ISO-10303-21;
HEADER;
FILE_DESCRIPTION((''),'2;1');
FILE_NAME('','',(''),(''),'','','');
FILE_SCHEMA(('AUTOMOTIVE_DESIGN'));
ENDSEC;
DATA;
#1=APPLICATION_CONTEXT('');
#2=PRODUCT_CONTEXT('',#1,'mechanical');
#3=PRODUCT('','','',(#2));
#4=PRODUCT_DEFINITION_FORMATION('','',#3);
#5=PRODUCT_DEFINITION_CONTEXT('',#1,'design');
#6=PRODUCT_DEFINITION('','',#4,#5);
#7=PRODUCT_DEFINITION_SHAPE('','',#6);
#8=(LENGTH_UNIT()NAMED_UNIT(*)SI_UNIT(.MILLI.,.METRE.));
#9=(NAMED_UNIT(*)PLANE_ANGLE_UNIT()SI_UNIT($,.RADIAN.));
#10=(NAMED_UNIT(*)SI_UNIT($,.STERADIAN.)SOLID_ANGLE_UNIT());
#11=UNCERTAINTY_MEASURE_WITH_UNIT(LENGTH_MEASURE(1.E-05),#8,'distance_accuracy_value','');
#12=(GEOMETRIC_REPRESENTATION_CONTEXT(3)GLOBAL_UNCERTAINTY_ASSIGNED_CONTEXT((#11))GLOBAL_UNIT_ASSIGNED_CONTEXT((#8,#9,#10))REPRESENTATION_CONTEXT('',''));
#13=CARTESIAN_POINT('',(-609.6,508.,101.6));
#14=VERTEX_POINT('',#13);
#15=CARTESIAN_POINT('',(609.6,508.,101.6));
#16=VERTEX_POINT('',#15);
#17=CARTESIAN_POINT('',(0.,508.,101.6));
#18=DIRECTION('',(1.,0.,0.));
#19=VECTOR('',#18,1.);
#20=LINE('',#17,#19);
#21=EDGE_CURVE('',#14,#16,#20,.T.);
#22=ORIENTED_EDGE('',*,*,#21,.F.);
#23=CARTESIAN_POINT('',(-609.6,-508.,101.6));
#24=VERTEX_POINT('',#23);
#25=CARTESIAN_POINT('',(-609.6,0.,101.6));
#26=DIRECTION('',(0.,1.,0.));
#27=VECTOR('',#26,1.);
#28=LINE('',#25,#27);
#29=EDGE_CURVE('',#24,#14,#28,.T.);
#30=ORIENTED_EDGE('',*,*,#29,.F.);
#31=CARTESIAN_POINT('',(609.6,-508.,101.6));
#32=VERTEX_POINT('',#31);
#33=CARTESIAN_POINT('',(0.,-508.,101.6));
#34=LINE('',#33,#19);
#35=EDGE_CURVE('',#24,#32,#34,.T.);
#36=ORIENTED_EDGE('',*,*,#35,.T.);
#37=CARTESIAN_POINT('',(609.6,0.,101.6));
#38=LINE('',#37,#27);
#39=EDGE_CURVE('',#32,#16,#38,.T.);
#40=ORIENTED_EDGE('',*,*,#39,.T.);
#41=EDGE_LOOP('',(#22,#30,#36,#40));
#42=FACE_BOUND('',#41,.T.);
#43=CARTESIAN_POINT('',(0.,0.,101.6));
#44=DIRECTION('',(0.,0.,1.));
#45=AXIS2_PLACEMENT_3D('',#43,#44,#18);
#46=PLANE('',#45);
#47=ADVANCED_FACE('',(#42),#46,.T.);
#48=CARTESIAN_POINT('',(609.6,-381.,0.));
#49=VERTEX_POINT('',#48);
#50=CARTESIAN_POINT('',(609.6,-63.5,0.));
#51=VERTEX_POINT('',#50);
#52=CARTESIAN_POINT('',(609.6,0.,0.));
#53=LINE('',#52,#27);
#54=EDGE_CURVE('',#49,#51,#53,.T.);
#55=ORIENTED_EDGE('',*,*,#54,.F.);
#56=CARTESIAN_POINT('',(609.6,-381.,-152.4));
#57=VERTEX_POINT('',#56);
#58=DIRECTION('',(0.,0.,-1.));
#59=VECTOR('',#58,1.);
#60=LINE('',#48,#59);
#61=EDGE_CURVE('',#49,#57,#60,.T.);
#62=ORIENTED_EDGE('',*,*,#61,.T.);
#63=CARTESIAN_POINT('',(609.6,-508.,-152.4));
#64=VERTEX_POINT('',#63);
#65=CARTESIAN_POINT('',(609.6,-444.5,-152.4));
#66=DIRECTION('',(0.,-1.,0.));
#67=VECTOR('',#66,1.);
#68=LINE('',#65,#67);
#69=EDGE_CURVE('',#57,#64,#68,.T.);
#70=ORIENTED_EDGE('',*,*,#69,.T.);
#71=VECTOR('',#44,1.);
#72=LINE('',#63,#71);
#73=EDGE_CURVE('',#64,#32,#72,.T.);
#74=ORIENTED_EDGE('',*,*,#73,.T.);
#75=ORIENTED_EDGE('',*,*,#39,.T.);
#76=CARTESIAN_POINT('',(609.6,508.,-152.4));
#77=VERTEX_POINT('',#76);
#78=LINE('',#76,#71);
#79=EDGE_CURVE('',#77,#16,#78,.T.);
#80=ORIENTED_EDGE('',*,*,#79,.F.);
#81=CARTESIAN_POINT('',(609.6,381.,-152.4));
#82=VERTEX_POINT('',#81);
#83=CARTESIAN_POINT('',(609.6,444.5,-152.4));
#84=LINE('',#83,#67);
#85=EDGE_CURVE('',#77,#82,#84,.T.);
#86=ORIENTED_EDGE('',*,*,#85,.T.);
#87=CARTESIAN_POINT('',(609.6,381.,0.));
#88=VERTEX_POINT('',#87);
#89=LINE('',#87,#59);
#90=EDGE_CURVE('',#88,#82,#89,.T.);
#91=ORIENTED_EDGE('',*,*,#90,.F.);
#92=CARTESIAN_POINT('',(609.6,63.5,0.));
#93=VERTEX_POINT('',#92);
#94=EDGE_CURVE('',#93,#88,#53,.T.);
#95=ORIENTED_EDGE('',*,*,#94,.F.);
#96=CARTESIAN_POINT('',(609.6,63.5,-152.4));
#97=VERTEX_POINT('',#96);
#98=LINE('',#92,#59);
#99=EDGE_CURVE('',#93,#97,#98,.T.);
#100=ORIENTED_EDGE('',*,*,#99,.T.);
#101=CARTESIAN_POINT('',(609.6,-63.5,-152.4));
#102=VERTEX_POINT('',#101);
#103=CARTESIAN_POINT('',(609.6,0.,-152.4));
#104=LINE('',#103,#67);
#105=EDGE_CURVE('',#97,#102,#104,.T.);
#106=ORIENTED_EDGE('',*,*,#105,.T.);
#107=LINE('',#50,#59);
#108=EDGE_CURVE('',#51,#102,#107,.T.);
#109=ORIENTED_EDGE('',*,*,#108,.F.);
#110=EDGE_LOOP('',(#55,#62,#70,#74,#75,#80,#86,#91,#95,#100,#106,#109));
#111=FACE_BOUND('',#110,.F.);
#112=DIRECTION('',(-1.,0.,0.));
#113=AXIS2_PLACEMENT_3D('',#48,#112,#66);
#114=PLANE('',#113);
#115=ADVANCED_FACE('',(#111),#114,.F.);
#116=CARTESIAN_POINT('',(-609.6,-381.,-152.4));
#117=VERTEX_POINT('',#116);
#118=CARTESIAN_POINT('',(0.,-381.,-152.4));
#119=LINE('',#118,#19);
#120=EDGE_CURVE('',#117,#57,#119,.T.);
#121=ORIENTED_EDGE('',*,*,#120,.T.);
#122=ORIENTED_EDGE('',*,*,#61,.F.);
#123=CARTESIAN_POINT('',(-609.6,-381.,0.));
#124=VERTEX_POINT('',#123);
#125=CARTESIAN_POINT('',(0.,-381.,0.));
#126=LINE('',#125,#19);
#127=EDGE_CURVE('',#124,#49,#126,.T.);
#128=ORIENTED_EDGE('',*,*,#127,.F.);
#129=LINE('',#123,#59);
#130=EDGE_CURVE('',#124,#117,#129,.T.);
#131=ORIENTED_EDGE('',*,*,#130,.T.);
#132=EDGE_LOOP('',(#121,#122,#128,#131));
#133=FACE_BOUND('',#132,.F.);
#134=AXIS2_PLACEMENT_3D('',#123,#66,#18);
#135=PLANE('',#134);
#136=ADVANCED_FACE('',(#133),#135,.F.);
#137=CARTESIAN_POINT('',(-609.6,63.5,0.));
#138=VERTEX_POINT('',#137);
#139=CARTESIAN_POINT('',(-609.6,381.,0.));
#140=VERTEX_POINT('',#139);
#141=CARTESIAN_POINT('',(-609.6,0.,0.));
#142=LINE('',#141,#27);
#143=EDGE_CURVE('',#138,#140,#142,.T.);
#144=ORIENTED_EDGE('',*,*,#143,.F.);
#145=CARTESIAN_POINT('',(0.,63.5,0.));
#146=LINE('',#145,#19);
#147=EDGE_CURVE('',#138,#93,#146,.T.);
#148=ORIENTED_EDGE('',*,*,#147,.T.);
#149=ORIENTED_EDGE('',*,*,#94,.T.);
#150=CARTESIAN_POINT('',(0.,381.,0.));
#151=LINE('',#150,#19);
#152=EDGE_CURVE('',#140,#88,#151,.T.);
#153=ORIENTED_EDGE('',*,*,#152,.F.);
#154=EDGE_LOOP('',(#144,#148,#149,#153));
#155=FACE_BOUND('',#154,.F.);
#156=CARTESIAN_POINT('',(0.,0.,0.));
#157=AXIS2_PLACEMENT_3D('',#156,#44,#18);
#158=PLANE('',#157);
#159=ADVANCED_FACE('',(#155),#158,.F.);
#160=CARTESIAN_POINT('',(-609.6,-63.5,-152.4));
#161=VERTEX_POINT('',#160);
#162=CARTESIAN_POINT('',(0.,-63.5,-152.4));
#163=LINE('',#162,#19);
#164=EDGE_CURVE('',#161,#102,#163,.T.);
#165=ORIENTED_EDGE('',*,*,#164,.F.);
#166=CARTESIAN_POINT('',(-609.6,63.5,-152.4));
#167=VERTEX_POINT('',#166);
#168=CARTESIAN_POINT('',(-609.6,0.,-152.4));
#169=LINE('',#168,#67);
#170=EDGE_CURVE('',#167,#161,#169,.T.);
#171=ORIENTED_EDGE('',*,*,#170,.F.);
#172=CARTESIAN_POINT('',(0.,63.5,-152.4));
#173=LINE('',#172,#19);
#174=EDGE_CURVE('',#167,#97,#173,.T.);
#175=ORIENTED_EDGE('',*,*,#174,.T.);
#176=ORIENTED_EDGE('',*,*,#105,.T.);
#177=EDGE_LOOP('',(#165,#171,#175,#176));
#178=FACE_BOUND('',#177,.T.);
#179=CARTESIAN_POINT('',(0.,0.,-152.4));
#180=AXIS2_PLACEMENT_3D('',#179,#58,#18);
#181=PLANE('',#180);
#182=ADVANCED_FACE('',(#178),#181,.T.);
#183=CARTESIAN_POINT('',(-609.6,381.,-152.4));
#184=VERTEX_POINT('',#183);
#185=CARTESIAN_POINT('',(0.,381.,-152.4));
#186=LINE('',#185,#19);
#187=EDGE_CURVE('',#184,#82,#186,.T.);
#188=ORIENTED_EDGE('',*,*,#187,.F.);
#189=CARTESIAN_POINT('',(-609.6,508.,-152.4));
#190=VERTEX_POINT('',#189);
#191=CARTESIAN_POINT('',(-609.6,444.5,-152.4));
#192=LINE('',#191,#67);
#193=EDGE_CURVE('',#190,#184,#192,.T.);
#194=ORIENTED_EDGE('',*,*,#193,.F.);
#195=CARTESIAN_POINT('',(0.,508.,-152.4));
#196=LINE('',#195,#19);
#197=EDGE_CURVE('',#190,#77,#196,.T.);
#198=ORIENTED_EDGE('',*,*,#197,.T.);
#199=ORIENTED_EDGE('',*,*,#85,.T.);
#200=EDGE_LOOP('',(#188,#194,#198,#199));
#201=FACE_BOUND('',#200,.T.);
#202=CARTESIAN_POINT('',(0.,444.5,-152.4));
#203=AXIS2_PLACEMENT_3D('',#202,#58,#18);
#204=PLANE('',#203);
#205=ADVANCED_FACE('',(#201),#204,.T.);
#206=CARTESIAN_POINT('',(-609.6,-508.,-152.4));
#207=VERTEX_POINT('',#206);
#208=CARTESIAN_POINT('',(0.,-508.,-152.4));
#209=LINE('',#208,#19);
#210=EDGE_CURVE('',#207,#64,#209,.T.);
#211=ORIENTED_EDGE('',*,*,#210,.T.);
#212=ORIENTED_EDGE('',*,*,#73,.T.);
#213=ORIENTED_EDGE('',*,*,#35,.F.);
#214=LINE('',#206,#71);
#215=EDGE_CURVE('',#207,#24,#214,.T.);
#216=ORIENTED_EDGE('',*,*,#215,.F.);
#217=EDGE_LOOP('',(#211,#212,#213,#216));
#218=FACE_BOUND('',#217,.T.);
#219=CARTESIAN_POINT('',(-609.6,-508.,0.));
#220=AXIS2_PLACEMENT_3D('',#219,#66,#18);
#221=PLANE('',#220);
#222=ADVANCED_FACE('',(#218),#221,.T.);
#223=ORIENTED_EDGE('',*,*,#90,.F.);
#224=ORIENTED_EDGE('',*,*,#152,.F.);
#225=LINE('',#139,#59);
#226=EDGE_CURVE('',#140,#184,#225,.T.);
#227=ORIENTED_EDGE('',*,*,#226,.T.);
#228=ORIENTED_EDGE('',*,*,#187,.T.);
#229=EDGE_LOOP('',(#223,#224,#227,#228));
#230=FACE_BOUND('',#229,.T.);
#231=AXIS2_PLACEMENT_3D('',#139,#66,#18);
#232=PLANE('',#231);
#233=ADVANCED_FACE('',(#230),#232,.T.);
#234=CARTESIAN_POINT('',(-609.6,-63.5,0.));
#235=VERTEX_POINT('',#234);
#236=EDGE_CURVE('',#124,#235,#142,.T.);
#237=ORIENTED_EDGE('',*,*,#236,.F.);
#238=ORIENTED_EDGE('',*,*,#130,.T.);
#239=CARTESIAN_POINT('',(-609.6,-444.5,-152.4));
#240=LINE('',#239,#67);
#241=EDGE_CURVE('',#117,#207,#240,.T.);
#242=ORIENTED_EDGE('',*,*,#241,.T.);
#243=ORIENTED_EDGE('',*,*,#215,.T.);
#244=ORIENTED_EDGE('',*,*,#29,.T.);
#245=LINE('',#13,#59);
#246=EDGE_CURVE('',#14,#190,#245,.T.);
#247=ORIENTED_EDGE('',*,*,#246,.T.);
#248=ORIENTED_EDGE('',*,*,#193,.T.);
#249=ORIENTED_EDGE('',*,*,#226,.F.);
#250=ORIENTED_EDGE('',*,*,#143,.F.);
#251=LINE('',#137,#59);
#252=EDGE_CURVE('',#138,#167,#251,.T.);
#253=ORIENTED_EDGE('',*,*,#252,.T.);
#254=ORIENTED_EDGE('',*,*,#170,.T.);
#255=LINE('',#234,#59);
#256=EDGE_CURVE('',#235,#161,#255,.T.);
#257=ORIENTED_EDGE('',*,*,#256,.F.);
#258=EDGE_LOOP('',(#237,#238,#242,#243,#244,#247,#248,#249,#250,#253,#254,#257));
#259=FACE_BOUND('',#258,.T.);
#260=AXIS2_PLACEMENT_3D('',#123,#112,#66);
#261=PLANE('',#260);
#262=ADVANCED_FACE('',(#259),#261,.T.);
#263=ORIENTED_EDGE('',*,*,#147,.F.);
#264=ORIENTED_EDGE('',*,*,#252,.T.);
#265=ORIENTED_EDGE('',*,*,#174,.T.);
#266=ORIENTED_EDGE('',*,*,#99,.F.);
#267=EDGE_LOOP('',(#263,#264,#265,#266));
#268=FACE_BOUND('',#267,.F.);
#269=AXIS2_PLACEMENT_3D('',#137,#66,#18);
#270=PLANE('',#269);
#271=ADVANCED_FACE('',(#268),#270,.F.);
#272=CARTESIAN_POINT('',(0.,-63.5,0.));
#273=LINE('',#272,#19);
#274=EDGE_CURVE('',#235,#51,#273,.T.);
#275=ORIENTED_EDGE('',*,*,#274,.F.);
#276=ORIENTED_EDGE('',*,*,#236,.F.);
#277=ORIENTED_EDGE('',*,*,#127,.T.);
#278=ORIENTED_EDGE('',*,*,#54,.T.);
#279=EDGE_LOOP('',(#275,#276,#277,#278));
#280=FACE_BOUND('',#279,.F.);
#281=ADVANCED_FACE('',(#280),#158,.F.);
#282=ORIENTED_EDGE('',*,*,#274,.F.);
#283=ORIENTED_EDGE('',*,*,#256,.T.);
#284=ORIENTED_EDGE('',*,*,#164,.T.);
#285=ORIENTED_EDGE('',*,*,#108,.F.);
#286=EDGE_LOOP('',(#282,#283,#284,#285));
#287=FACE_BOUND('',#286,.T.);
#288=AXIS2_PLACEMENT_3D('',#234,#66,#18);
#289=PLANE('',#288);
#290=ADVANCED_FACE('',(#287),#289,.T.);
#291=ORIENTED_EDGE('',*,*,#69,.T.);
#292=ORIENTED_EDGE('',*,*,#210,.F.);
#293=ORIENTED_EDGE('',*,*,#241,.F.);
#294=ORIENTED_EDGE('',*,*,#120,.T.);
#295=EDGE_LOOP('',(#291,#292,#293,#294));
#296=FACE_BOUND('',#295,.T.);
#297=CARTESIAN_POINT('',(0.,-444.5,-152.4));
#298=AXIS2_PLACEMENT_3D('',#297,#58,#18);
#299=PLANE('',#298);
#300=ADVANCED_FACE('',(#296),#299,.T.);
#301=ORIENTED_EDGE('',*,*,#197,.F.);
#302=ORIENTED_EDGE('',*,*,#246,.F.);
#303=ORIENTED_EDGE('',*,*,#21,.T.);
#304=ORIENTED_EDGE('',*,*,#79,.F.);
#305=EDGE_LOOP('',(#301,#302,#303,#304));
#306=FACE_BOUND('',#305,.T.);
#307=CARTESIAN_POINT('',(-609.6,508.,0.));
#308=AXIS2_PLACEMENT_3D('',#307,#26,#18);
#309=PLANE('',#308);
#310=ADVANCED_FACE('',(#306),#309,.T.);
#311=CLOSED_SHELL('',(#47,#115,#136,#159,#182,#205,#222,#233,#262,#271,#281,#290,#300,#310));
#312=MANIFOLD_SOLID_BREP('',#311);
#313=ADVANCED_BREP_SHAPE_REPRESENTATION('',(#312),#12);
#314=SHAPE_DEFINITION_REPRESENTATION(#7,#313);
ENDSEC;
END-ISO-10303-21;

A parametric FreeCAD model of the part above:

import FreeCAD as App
import Part
import Sketcher
from FreeCAD import Vector
Q = App.Units.Quantity


def add_polygon(sketch, points):
    """Adds a closed chain of lines whose ends are joined by coincident constraints."""
    first, n = sketch.GeometryCount, len(points)
    for a, b in zip(points, points[1:] + points[:1]):
        sketch.addGeometry(Part.LineSegment(App.Vector(*a, 0), App.Vector(*b, 0)), False)
    for i in range(n):
        sketch.addConstraint(Sketcher.Constraint("Coincident", first + i, 2, first + (i + 1) % n, 1))

doc = App.newDocument("Part")
body = doc.addObject("PartDesign::Body", "Body")

# Sketch on XY plane
sketch1 = doc.addObject("Sketcher::SketchObject", "Sketch")
body.addObject(sketch1)
sketch1.AttachmentSupport = (doc.XY_Plane, [""])
sketch1.MapMode = "FlatFace"
add_polygon(sketch1, [(-610, 508), (-610, -508), (610, -508), (610, 508)])  # lines 0-3
sketch1.addConstraint([
    Sketcher.Constraint("Vertical", 0),
    Sketcher.Constraint("Horizontal", 1),
    Sketcher.Constraint("Vertical", 2),
    Sketcher.Constraint("Horizontal", 3),
    Sketcher.Constraint("Symmetric", 0, 2, 2, 2, -1, 1),
    Sketcher.Constraint("DistanceX", 1, 1, 1, 2, Q("48 in")),
    Sketcher.Constraint("DistanceY", 0, 2, 0, 1, Q("40 in")),
])
pad1 = doc.addObject("PartDesign::Pad", "Pad")
body.addObject(pad1)
pad1.Profile = sketch1
pad1.Length = Q("4 in")

# Sketch on XY plane
sketch2 = doc.addObject("Sketcher::SketchObject", "Sketch001")
body.addObject(sketch2)
sketch2.AttachmentSupport = (doc.XY_Plane, [""])
sketch2.MapMode = "FlatFace"
add_polygon(sketch2, [(-610, -508), (-610, -381), (610, -381), (610, -508)])  # lines 0-3
add_polygon(sketch2, [(-610, 381), (-610, 508), (610, 508), (610, 381)])  # lines 4-7
add_polygon(sketch2, [(-610, -64), (-610, 64), (610, 64), (610, -64)])  # lines 8-11
sketch2.addConstraint([
    Sketcher.Constraint("Vertical", 0),
    Sketcher.Constraint("Horizontal", 1),
    Sketcher.Constraint("Vertical", 2),
    Sketcher.Constraint("Horizontal", 3),
    Sketcher.Constraint("Vertical", 4),
    Sketcher.Constraint("Horizontal", 5),
    Sketcher.Constraint("Vertical", 6),
    Sketcher.Constraint("Horizontal", 7),
    Sketcher.Constraint("Vertical", 8),
    Sketcher.Constraint("Horizontal", 9),
    Sketcher.Constraint("Vertical", 10),
    Sketcher.Constraint("Horizontal", 11),
    Sketcher.Constraint("Symmetric", 2, 2, 4, 2, -1, 1),
    Sketcher.Constraint("Symmetric", 0, 2, 6, 2, -1, 1),
    Sketcher.Constraint("Symmetric", 8, 2, 10, 2, -1, 1),
    Sketcher.Constraint("Vertical", 3, 2, 4, 2),
    Sketcher.Constraint("Vertical", 7, 2, 8, 2),
    Sketcher.Constraint("Equal", 6, 8),
    Sketcher.Constraint("DistanceX", 1, 1, 1, 2, Q("48 in")),
    Sketcher.Constraint("DistanceY", 0, 1, 0, 2, Q("5 in")),
    Sketcher.Constraint("DistanceY", 0, 2, -1, 1, Q("15 in")),
])
pad2 = doc.addObject("PartDesign::Pad", "Pad001")
body.addObject(pad2)
pad2.Profile = sketch2
pad2.Length = Q("6 in")
pad2.Reversed = True

doc.recompute()
